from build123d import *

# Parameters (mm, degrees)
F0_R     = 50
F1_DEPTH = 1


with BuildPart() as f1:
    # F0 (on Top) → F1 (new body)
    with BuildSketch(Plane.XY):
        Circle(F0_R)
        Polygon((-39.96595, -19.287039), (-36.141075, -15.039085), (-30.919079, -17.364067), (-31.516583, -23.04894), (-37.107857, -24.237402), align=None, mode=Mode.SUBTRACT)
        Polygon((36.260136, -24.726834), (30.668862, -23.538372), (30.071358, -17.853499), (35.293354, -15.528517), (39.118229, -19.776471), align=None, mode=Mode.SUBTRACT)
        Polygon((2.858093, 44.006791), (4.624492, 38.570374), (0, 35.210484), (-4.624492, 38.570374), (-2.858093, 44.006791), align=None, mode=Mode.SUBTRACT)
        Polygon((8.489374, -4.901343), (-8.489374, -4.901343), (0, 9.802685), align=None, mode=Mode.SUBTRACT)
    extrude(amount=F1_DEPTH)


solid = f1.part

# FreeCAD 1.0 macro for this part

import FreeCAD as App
import Part
import Sketcher
Q = App.Units.Quantity

doc = App.newDocument("Part")
body = doc.addObject("PartDesign::Body", "Body")

sketch1 = body.newObject("Sketcher::SketchObject", "Sketch")
sketch1.AttachmentSupport = (doc.getObject("XY_Plane"), [""])
sketch1.MapMode = "FlatFace"
sketch1.addGeometry([
    Part.Circle(App.Vector(0, 0, 0), App.Vector(0, 0, 1), 50),
    Part.LineSegment(App.Vector(-37, -24, 0), App.Vector(-40, -19, 0)),
    Part.LineSegment(App.Vector(-40, -19, 0), App.Vector(-36, -15, 0)),
    Part.LineSegment(App.Vector(-36, -15, 0), App.Vector(-31, -17, 0)),
    Part.LineSegment(App.Vector(-31, -17, 0), App.Vector(-32, -23, 0)),
    Part.LineSegment(App.Vector(-32, -23, 0), App.Vector(-37, -24, 0)),
    Part.LineSegment(App.Vector(39, -20, 0), App.Vector(36, -25, 0)),
    Part.LineSegment(App.Vector(36, -25, 0), App.Vector(31, -24, 0)),
    Part.LineSegment(App.Vector(31, -24, 0), App.Vector(30, -18, 0)),
    Part.LineSegment(App.Vector(30, -18, 0), App.Vector(35, -16, 0)),
    Part.LineSegment(App.Vector(35, -16, 0), App.Vector(39, -20, 0)),
    Part.LineSegment(App.Vector(0, 10, 0), App.Vector(8, -5, 0)),
    Part.LineSegment(App.Vector(8, -5, 0), App.Vector(-8, -5, 0)),
    Part.LineSegment(App.Vector(-8, -5, 0), App.Vector(0, 10, 0)),
    Part.LineSegment(App.Vector(-3, 44, 0), App.Vector(3, 44, 0)),
    Part.LineSegment(App.Vector(3, 44, 0), App.Vector(5, 39, 0)),
    Part.LineSegment(App.Vector(5, 39, 0), App.Vector(0, 35, 0)),
    Part.LineSegment(App.Vector(0, 35, 0), App.Vector(-5, 39, 0)),
    Part.LineSegment(App.Vector(-5, 39, 0), App.Vector(-3, 44, 0)),
], False)
sketch1.addConstraint([
    Sketcher.Constraint("Coincident", 1, 2, 2, 1),
    Sketcher.Constraint("Coincident", 2, 2, 3, 1),
    Sketcher.Constraint("Coincident", 3, 2, 4, 1),
    Sketcher.Constraint("Coincident", 4, 2, 5, 1),
    Sketcher.Constraint("Coincident", 5, 2, 1, 1),
    Sketcher.Constraint("Coincident", 6, 2, 7, 1),
    Sketcher.Constraint("Coincident", 7, 2, 8, 1),
    Sketcher.Constraint("Coincident", 8, 2, 9, 1),
    Sketcher.Constraint("Coincident", 9, 2, 10, 1),
    Sketcher.Constraint("Coincident", 10, 2, 6, 1),
    Sketcher.Constraint("Coincident", 11, 2, 12, 1),
    Sketcher.Constraint("Coincident", 12, 2, 13, 1),
    Sketcher.Constraint("Coincident", 13, 2, 11, 1),
    Sketcher.Constraint("Coincident", 14, 2, 15, 1),
    Sketcher.Constraint("Coincident", 15, 2, 16, 1),
    Sketcher.Constraint("Coincident", 16, 2, 17, 1),
    Sketcher.Constraint("Coincident", 17, 2, 18, 1),
    Sketcher.Constraint("Coincident", 18, 2, 14, 1),
    Sketcher.Constraint("Horizontal", 12),
    Sketcher.Constraint("Horizontal", 14),
    Sketcher.Constraint("Coincident", 0, 3, -1, 1),
    Sketcher.Constraint("Symmetric", 15, 2, 17, 2, -2),
    Sketcher.Constraint("PointOnObject", 13, 2, -2),
    Sketcher.Constraint("PointOnObject", 16, 2, -2),
    Sketcher.Constraint("Parallel", 1, 11),
    Sketcher.Constraint("Parallel", 6, 13),
    Sketcher.Constraint("Equal", 1, 2),
    Sketcher.Constraint("Equal", 2, 3),
    Sketcher.Constraint("Equal", 3, 4),
    Sketcher.Constraint("Equal", 4, 5),
    Sketcher.Constraint("Equal", 5, 6),
    Sketcher.Constraint("Equal", 6, 7),
    Sketcher.Constraint("Equal", 7, 8),
    Sketcher.Constraint("Equal", 8, 9),
    Sketcher.Constraint("Equal", 9, 10),
    Sketcher.Constraint("Equal", 11, 13),
    Sketcher.Constraint("Equal", 10, 15),
    Sketcher.Constraint("Equal", 15, 16),
    Sketcher.Constraint("Equal", 17, 18),
    Sketcher.Constraint("Diameter", 0, Q("100 mm")),
    Sketcher.Constraint("Angle", 1, Q("119.999996 deg")),
    Sketcher.Constraint("Angle", 2, Q("48 deg")),
    Sketcher.Constraint("Angle", 3, Q("-23.999996 deg")),
    Sketcher.Constraint("Angle", 7, Q("168 deg")),
    Sketcher.Constraint("Angle", 8, Q("95.999998 deg")),
    Sketcher.Constraint("Angle", 15, Q("-72 deg")),
    Sketcher.Constraint("Angle", 16, Q("-144.000001 deg")),
    Sketcher.Constraint("DistanceY", 5, 2, -1, 1, Q("24.237402 mm")),
    Sketcher.Constraint("DistanceY", 8, 2, -1, 1, Q("17.853499 mm")),
    Sketcher.Constraint("DistanceY", 4, 2, 1, 2, Q("3.761901 mm")),
    Sketcher.Constraint("DistanceX", 2, 2, 12, 2, Q("27.651701 mm")),
    Sketcher.Constraint("DistanceY", 13, 2, 16, 2, Q("25.407799 mm")),
    Sketcher.Constraint("Distance", 11, Q("16.978749 mm")),
    Sketcher.Constraint("DistanceX", -1, 1, 8, 2, Q("30.071358 mm")),
    Sketcher.Constraint("DistanceY", -1, 1, 14, 2, Q("44.006791 mm")),
])
pad1 = body.newObject("PartDesign::Pad", "Pad")
pad1.Profile = sketch1
pad1.Length = 1

doc.recompute()
